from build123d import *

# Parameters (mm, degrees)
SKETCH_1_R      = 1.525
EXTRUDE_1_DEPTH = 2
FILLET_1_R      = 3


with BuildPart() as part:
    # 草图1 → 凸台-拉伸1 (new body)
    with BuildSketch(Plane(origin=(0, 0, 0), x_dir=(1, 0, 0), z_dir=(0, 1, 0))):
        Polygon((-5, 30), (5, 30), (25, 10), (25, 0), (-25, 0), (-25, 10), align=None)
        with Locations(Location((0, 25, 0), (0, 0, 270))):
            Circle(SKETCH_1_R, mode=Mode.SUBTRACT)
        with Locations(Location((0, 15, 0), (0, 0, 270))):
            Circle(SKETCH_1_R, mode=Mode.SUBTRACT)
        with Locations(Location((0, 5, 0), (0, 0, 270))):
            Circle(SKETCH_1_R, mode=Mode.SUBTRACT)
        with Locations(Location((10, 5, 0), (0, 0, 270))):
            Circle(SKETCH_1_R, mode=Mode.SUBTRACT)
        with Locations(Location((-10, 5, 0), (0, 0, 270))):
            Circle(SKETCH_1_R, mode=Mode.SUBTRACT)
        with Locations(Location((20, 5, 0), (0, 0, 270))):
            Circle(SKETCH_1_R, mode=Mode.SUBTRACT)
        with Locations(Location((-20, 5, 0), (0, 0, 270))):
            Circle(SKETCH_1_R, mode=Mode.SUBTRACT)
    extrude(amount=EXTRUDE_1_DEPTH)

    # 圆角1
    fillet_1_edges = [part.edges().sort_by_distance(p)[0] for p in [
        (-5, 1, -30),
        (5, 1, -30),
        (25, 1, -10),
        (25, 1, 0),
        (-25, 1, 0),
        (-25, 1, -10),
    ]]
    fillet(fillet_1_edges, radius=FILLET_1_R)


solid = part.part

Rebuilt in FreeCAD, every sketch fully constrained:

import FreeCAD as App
import Part
import Sketcher
from FreeCAD import Vector


def edges_at(feature, points):
    """Names of the edges that pass closest to the given points."""
    edges = feature.Shape.Edges
    near = lambda p: min(range(len(edges)), key=lambda i: edges[i].distToShape(Part.Vertex(*p))[0])
    return sorted({f"Edge{near(p) + 1}" for p in points})

doc = App.newDocument("Part")
body = doc.addObject("PartDesign::Body", "Body")

# Sketch on XZ plane
sketch1 = body.newObject("Sketcher::SketchObject", "Sketch")
sketch1.AttachmentSupport = (doc.getObject("XZ_Plane"), [""])
sketch1.MapMode = "FlatFace"
sketch1.addGeometry(Part.LineSegment(Vector(5, -30, 0), Vector(-5, -30, 0)), False)
sketch1.addGeometry(Part.LineSegment(Vector(-5, -30, 0), Vector(-25, -10, 0)), False)
sketch1.addGeometry(Part.LineSegment(Vector(-25, -10, 0), Vector(-25, 0, 0)), False)
sketch1.addGeometry(Part.LineSegment(Vector(-25, 0, 0), Vector(25, 0, 0)), False)
sketch1.addGeometry(Part.LineSegment(Vector(25, 0, 0), Vector(25, -10, 0)), False)
sketch1.addGeometry(Part.LineSegment(Vector(25, -10, 0), Vector(5, -30, 0)), False)
sketch1.addGeometry(Part.Circle(Vector(20, -5, 0), Vector(0, 0, 1), 1.5), False)
sketch1.addGeometry(Part.Circle(Vector(10, -5, 0), Vector(0, 0, 1), 1.5), False)
sketch1.addGeometry(Part.Circle(Vector(0, -5, 0), Vector(0, 0, 1), 1.5), False)
sketch1.addGeometry(Part.Circle(Vector(-10, -5, 0), Vector(0, 0, 1), 1.5), False)
sketch1.addGeometry(Part.Circle(Vector(-20, -5, 0), Vector(0, 0, 1), 1.5), False)
sketch1.addGeometry(Part.Circle(Vector(0, -15, 0), Vector(0, 0, 1), 1.5), False)
sketch1.addGeometry(Part.Circle(Vector(0, -25, 0), Vector(0, 0, 1), 1.5), False)
sketch1.addConstraint(Sketcher.Constraint("Coincident", 0, 2, 1, 1))
sketch1.addConstraint(Sketcher.Constraint("Coincident", 1, 2, 2, 1))
sketch1.addConstraint(Sketcher.Constraint("Coincident", 2, 2, 3, 1))
sketch1.addConstraint(Sketcher.Constraint("Coincident", 3, 2, 4, 1))
sketch1.addConstraint(Sketcher.Constraint("Coincident", 4, 2, 5, 1))
sketch1.addConstraint(Sketcher.Constraint("Coincident", 5, 2, 0, 1))
sketch1.addConstraint(Sketcher.Constraint("Horizontal", 0))
sketch1.addConstraint(Sketcher.Constraint("Vertical", 2))
sketch1.addConstraint(Sketcher.Constraint("Horizontal", 3))
sketch1.addConstraint(Sketcher.Constraint("Vertical", 4))
sketch1.addConstraint(Sketcher.Constraint("Equal", 6, 7))
sketch1.addConstraint(Sketcher.Constraint("Equal", 7, 8))
sketch1.addConstraint(Sketcher.Constraint("Equal", 8, 9))
sketch1.addConstraint(Sketcher.Constraint("Equal", 9, 10))
sketch1.addConstraint(Sketcher.Constraint("Equal", 10, 11))
sketch1.addConstraint(Sketcher.Constraint("Equal", 11, 12))
sketch1.addConstraint(Sketcher.Constraint("Symmetric", 2, 2, 3, 2, -1, 1))
sketch1.addConstraint(Sketcher.Constraint("Symmetric", 7, 3, 9, 3, -2))
sketch1.addConstraint(Sketcher.Constraint("Symmetric", 6, 3, 10, 3, -2))
sketch1.addConstraint(Sketcher.Constraint("PointOnObject", 8, 3, -2))
sketch1.addConstraint(Sketcher.Constraint("PointOnObject", 11, 3, -2))
sketch1.addConstraint(Sketcher.Constraint("PointOnObject", 12, 3, -2))
sketch1.addConstraint(Sketcher.Constraint("Perpendicular", 1, 5))
sketch1.addConstraint(Sketcher.Constraint("Horizontal", 6, 3, 7, 3))
sketch1.addConstraint(Sketcher.Constraint("Horizontal", 7, 3, 8, 3))
sketch1.addConstraint(Sketcher.Constraint("Horizontal", 1, 2, 4, 2))
sketch1.addConstraint(Sketcher.Constraint("Equal", 0, 2))
sketch1.addConstraint(Sketcher.Constraint("Equal", 1, 5))
sketch1.addConstraint(Sketcher.Constraint("Diameter", 6, 3.05))
sketch1.addConstraint(Sketcher.Constraint("DistanceX", 0, 2, 0, 1, 10.0))
sketch1.addConstraint(Sketcher.Constraint("DistanceX", 3, 1, 3, 2, 50.0))
sketch1.addConstraint(Sketcher.Constraint("DistanceX", -1, 1, 6, 3, 20.0))
sketch1.addConstraint(Sketcher.Constraint("DistanceY", 6, 3, -1, 1, 5.0))
sketch1.addConstraint(Sketcher.Constraint("DistanceX", -1, 1, 7, 3, 10.0))
sketch1.addConstraint(Sketcher.Constraint("DistanceY", 11, 3, -1, 1, 15.0))
sketch1.addConstraint(Sketcher.Constraint("DistanceY", 12, 3, -1, 1, 25.0))
pad1 = body.newObject("PartDesign::Pad", "Pad")
pad1.Profile = sketch1
pad1.Length = 2
pad1.Reversed = True
doc.recompute()

fillet = body.newObject("PartDesign::Fillet", "Fillet")
fillet.Base = (pad1, edges_at(pad1, [
    (-5, 1, -30),
    (5, 1, -30),
    (25, 1, -10),
    (25, 1, 0),
    (-25, 1, 0),
    (-25, 1, -10),
]))
fillet.Radius = 3

doc.recompute()
